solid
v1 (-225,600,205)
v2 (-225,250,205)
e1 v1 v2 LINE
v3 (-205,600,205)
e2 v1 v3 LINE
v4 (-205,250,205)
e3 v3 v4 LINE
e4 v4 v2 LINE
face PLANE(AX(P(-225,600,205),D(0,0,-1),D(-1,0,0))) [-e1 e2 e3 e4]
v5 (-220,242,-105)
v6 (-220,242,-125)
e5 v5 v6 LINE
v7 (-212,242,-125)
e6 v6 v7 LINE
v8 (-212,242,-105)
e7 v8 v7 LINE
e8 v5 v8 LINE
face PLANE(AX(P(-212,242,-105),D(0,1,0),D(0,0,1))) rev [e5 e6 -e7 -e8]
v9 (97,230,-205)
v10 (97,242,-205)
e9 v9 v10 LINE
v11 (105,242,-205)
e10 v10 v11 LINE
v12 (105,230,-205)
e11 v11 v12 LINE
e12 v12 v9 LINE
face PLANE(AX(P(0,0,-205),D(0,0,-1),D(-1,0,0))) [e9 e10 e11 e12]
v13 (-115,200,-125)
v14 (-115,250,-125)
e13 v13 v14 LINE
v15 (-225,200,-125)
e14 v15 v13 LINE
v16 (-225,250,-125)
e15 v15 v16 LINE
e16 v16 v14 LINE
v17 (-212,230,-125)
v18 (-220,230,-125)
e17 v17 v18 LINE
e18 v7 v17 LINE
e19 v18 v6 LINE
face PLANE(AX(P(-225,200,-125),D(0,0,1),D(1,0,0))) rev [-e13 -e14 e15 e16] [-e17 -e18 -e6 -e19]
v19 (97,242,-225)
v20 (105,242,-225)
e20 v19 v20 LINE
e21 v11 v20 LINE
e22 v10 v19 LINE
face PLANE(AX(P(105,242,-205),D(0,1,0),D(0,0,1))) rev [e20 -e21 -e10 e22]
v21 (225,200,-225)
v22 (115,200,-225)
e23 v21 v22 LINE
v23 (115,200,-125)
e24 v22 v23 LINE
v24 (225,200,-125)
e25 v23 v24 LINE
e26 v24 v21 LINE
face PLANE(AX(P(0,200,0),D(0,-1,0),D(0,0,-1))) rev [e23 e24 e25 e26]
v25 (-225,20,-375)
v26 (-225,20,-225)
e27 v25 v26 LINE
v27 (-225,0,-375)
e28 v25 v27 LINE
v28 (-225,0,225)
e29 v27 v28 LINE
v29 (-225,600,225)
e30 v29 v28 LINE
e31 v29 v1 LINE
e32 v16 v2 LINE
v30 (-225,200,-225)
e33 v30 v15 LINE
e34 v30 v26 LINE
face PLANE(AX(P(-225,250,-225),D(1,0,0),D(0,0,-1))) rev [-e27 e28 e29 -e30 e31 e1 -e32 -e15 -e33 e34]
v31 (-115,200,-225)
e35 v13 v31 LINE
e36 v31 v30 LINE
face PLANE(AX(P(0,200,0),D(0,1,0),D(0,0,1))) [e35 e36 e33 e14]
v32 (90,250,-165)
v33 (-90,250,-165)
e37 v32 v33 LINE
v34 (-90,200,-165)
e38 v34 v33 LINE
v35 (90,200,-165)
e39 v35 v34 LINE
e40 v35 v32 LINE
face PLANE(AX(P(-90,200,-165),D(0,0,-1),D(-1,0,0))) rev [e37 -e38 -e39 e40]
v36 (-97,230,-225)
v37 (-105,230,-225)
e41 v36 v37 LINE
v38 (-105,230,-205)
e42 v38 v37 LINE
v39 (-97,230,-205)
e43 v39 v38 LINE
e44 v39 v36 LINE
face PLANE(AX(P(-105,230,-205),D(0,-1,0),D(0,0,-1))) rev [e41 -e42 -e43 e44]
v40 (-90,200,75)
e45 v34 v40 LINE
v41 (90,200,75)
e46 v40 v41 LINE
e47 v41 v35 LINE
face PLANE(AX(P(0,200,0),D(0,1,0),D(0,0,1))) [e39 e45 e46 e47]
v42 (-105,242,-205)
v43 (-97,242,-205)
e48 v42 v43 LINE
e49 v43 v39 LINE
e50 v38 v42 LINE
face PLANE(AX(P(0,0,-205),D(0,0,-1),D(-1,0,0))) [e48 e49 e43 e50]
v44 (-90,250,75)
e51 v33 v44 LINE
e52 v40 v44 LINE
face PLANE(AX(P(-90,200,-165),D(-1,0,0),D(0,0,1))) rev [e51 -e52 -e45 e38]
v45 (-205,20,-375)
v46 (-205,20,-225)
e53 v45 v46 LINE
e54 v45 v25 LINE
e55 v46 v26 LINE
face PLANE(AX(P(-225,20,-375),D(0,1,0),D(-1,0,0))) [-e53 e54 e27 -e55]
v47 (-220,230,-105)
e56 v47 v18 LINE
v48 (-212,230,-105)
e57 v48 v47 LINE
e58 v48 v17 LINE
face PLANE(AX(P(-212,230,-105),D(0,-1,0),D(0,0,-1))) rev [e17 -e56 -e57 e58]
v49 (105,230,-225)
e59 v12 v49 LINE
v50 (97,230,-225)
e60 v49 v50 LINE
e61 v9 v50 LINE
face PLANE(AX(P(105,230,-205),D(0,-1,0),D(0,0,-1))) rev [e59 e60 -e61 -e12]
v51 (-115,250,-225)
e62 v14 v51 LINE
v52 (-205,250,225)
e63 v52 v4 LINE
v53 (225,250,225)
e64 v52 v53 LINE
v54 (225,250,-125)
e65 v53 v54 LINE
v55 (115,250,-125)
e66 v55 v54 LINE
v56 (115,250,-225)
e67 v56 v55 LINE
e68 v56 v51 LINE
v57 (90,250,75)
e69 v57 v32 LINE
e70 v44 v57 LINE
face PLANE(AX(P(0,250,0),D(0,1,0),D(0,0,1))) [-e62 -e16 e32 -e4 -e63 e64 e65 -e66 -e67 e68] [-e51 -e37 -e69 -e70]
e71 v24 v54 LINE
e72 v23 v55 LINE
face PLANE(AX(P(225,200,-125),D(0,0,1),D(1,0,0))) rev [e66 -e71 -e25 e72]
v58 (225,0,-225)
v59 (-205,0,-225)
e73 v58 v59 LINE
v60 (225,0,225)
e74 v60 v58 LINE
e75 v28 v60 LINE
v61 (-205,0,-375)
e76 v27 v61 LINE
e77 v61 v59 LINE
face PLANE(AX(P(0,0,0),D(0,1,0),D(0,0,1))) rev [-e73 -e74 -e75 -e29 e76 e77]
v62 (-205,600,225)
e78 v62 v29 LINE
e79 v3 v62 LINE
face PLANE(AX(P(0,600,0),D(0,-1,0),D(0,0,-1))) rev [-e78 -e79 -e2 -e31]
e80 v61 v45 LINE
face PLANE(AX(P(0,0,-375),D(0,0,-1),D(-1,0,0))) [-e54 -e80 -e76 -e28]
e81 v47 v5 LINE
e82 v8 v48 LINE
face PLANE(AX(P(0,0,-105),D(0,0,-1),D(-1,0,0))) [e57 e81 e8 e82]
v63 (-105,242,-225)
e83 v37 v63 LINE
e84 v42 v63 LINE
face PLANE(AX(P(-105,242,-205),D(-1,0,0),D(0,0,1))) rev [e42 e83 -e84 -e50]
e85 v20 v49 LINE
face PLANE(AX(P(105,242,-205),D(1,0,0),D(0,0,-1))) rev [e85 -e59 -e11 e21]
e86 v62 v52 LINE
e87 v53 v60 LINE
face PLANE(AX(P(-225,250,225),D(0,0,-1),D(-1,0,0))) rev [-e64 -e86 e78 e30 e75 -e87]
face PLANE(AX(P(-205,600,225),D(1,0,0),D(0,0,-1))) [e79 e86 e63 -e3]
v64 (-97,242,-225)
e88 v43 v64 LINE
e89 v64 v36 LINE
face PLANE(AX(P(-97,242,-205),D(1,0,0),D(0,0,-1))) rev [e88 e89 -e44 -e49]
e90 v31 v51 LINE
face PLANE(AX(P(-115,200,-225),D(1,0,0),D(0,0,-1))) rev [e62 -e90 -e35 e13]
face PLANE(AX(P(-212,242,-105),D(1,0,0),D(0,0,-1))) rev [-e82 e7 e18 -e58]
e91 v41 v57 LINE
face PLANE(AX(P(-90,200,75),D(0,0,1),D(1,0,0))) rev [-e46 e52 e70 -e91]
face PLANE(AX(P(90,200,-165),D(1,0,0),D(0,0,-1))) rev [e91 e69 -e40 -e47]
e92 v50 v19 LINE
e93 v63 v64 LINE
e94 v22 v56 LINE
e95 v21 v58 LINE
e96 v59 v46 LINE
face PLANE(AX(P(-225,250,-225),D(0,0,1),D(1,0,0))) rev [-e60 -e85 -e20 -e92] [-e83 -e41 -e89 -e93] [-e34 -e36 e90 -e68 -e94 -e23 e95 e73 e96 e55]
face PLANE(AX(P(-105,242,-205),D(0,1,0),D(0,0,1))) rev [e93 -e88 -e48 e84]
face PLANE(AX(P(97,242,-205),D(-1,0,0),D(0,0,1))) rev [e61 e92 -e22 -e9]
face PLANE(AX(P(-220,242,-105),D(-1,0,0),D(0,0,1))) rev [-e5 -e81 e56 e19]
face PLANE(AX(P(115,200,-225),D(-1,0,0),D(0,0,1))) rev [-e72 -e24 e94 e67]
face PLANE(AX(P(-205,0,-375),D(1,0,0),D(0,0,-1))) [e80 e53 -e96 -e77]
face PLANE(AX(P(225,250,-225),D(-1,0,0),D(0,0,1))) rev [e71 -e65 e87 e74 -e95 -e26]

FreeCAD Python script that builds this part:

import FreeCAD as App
import Part
import Sketcher


def add_polygon(sketch, points):
    """Adds a closed chain of lines whose ends are joined by coincident constraints."""
    first, n = sketch.GeometryCount, len(points)
    for a, b in zip(points, points[1:] + points[:1]):
        sketch.addGeometry(Part.LineSegment(App.Vector(*a, 0), App.Vector(*b, 0)), False)
    for i in range(n):
        sketch.addConstraint(Sketcher.Constraint("Coincident", first + i, 2, first + (i + 1) % n, 1))

doc = App.newDocument("Part")
body = doc.addObject("PartDesign::Body", "Body")

sketch1 = doc.addObject("Sketcher::SketchObject", "Sketch")
body.addObject(sketch1)
sketch1.AttachmentSupport = (doc.XZ_Plane, [""])
sketch1.MapMode = "FlatFace"
add_polygon(sketch1, [(-225, -225), (-225, 225), (225, 225), (225, -225)])
sketch1.addConstraint([
    Sketcher.Constraint("Vertical", 0),
    Sketcher.Constraint("Horizontal", 1),
    Sketcher.Constraint("Vertical", 2),
    Sketcher.Constraint("Horizontal", 3),
    Sketcher.Constraint("Symmetric", 0, 2, 2, 2, -1, 1),
    Sketcher.Constraint("Equal", 3, 0),
    Sketcher.Constraint("DistanceX", 1, 1, 1, 2, 450.0),
])
pad1 = doc.addObject("PartDesign::Pad", "Pad")
body.addObject(pad1)
pad1.Profile = sketch1
pad1.Length = 250
pad1.Reversed = True

sketch2 = doc.addObject("Sketcher::SketchObject", "Sketch001")
body.addObject(sketch2)
sketch2.AttachmentSupport = (doc.XZ_Plane, [""])
sketch2.MapMode = "FlatFace"
sketch2.AttachmentOffset = App.Placement(App.Vector(0, 0, -250), App.Rotation())
add_polygon(sketch2, [(-90, -165), (-90, 75), (90, 75), (90, -165)])
sketch2.addConstraint([
    Sketcher.Constraint("Vertical", 0),
    Sketcher.Constraint("Horizontal", 1),
    Sketcher.Constraint("Vertical", 2),
    Sketcher.Constraint("Horizontal", 3),
    Sketcher.Constraint("DistanceX", 1, 1, 1, 2, 180.0),
    Sketcher.Constraint("DistanceY", 0, 1, 0, 2, 240.0),
    Sketcher.Constraint("DistanceX", 0, 2, -1, 1, 90.0),
    Sketcher.Constraint("DistanceY", -1, 1, 0, 2, 75.0),
])
pocket1 = doc.addObject("PartDesign::Pocket", "Pocket")
body.addObject(pocket1)
pocket1.Profile = sketch2
pocket1.Length = 50
pocket1.Reversed = True

sketch3 = doc.addObject("Sketcher::SketchObject", "Sketch002")
body.addObject(sketch3)
sketch3.AttachmentSupport = (doc.XZ_Plane, [""])
sketch3.MapMode = "FlatFace"
sketch3.AttachmentOffset = App.Placement(App.Vector(0, 0, -250), App.Rotation())
add_polygon(sketch3, [(-225, -225), (-225, -125), (-115, -125), (-115, -225)])
add_polygon(sketch3, [(115, -225), (115, -125), (225, -125), (225, -225)])
sketch3.addConstraint([
    Sketcher.Constraint("Vertical", 0),
    Sketcher.Constraint("Horizontal", 1),
    Sketcher.Constraint("Vertical", 2),
    Sketcher.Constraint("Horizontal", 3),
    Sketcher.Constraint("Vertical", 4),
    Sketcher.Constraint("Horizontal", 5),
    Sketcher.Constraint("Vertical", 6),
    Sketcher.Constraint("Horizontal", 7),
    Sketcher.Constraint("Symmetric", 1, 2, 4, 2, -2),
    Sketcher.Constraint("Symmetric", 3, 2, 6, 2, -2),
    Sketcher.Constraint("DistanceX", 1, 1, 1, 2, 110.0),
    Sketcher.Constraint("DistanceY", 0, 1, 0, 2, 100.0),
    Sketcher.Constraint("DistanceX", 0, 2, -1, 1, 225.0),
    Sketcher.Constraint("DistanceY", 0, 2, -1, 1, 125.0),
])
pocket2 = doc.addObject("PartDesign::Pocket", "Pocket001")
body.addObject(pocket2)
pocket2.Profile = sketch3
pocket2.Length = 50
pocket2.Reversed = True

sketch4 = doc.addObject("Sketcher::SketchObject", "Sketch003")
body.addObject(sketch4)
sketch4.AttachmentSupport = (doc.XY_Plane, [""])
sketch4.MapMode = "FlatFace"
sketch4.AttachmentOffset = App.Placement(App.Vector(0, 0, -225), App.Rotation())
add_polygon(sketch4, [(105, 242), (105, 230), (97, 230), (97, 242)])
add_polygon(sketch4, [(-97, 242), (-97, 230), (-105, 230), (-105, 242)])
sketch4.addConstraint([
    Sketcher.Constraint("Vertical", 0),
    Sketcher.Constraint("Horizontal", 1),
    Sketcher.Constraint("Vertical", 2),
    Sketcher.Constraint("Horizontal", 3),
    Sketcher.Constraint("Vertical", 4),
    Sketcher.Constraint("Horizontal", 5),
    Sketcher.Constraint("Vertical", 6),
    Sketcher.Constraint("Horizontal", 7),
    Sketcher.Constraint("Symmetric", 1, 2, 4, 2, -2),
    Sketcher.Constraint("Symmetric", 3, 2, 6, 2, -2),
    Sketcher.Constraint("DistanceX", 1, 2, 1, 1, 8.0),
    Sketcher.Constraint("DistanceY", 0, 2, 0, 1, 12.0),
    Sketcher.Constraint("DistanceX", -1, 1, 0, 2, 105.0),
    Sketcher.Constraint("DistanceY", -1, 1, 0, 2, 230.0),
])
pocket3 = doc.addObject("PartDesign::Pocket", "Pocket002")
body.addObject(pocket3)
pocket3.Profile = sketch4
pocket3.Length = 20
pocket3.Reversed = True

sketch5 = doc.addObject("Sketcher::SketchObject", "Sketch004")
body.addObject(sketch5)
sketch5.AttachmentSupport = (doc.XY_Plane, [""])
sketch5.MapMode = "FlatFace"
sketch5.AttachmentOffset = App.Placement(App.Vector(0, 0, -125), App.Rotation())
add_polygon(sketch5, [(-212, 242), (-212, 230), (-220, 230), (-220, 242)])
sketch5.addConstraint([
    Sketcher.Constraint("Vertical", 0),
    Sketcher.Constraint("Horizontal", 1),
    Sketcher.Constraint("Vertical", 2),
    Sketcher.Constraint("Horizontal", 3),
    Sketcher.Constraint("DistanceX", 1, 2, 1, 1, 8.0),
    Sketcher.Constraint("DistanceY", 0, 2, 0, 1, 12.0),
    Sketcher.Constraint("DistanceX", 0, 2, -1, 1, 212.0),
    Sketcher.Constraint("DistanceY", -1, 1, 0, 2, 230.0),
])
pocket4 = doc.addObject("PartDesign::Pocket", "Pocket003")
body.addObject(pocket4)
pocket4.Profile = sketch5
pocket4.Length = 20
pocket4.Reversed = True

sketch6 = doc.addObject("Sketcher::SketchObject", "Sketch005")
body.addObject(sketch6)
sketch6.AttachmentSupport = (doc.XZ_Plane, [""])
sketch6.MapMode = "FlatFace"
add_polygon(sketch6, [(-225, 225), (-225, 205), (-205, 205), (-205, 225)])
sketch6.addConstraint([
    Sketcher.Constraint("Vertical", 0),
    Sketcher.Constraint("Horizontal", 1),
    Sketcher.Constraint("Vertical", 2),
    Sketcher.Constraint("Horizontal", 3),
    Sketcher.Constraint("Equal", 3, 0),
    Sketcher.Constraint("DistanceX", 1, 1, 1, 2, 20.0),
    Sketcher.Constraint("DistanceX", 0, 2, -1, 1, 225.0),
    Sketcher.Constraint("DistanceY", -1, 1, 0, 2, 205.0),
])
pad2 = doc.addObject("PartDesign::Pad", "Pad001")
body.addObject(pad2)
pad2.Profile = sketch6
pad2.Length = 600
pad2.Reversed = True

sketch7 = doc.addObject("Sketcher::SketchObject", "Sketch006")
body.addObject(sketch7)
sketch7.AttachmentSupport = (doc.XY_Plane, [""])
sketch7.MapMode = "FlatFace"
sketch7.AttachmentOffset = App.Placement(App.Vector(0, 0, 225), App.Rotation())
add_polygon(sketch7, [(-225, 20), (-225, 0), (-205, 0), (-205, 20)])
sketch7.addConstraint([
    Sketcher.Constraint("Vertical", 0),
    Sketcher.Constraint("Horizontal", 1),
    Sketcher.Constraint("Vertical", 2),
    Sketcher.Constraint("Horizontal", 3),
    Sketcher.Constraint("PointOnObject", 0, 2, -1),
    Sketcher.Constraint("Equal", 3, 0),
    Sketcher.Constraint("DistanceX", 1, 1, 1, 2, 20.0),
    Sketcher.Constraint("DistanceX", 0, 2, -1, 1, 225.0),
])
pad3 = doc.addObject("PartDesign::Pad", "Pad002")
body.addObject(pad3)
pad3.Profile = sketch7
pad3.Length = 600
pad3.Reversed = True

doc.recompute()
